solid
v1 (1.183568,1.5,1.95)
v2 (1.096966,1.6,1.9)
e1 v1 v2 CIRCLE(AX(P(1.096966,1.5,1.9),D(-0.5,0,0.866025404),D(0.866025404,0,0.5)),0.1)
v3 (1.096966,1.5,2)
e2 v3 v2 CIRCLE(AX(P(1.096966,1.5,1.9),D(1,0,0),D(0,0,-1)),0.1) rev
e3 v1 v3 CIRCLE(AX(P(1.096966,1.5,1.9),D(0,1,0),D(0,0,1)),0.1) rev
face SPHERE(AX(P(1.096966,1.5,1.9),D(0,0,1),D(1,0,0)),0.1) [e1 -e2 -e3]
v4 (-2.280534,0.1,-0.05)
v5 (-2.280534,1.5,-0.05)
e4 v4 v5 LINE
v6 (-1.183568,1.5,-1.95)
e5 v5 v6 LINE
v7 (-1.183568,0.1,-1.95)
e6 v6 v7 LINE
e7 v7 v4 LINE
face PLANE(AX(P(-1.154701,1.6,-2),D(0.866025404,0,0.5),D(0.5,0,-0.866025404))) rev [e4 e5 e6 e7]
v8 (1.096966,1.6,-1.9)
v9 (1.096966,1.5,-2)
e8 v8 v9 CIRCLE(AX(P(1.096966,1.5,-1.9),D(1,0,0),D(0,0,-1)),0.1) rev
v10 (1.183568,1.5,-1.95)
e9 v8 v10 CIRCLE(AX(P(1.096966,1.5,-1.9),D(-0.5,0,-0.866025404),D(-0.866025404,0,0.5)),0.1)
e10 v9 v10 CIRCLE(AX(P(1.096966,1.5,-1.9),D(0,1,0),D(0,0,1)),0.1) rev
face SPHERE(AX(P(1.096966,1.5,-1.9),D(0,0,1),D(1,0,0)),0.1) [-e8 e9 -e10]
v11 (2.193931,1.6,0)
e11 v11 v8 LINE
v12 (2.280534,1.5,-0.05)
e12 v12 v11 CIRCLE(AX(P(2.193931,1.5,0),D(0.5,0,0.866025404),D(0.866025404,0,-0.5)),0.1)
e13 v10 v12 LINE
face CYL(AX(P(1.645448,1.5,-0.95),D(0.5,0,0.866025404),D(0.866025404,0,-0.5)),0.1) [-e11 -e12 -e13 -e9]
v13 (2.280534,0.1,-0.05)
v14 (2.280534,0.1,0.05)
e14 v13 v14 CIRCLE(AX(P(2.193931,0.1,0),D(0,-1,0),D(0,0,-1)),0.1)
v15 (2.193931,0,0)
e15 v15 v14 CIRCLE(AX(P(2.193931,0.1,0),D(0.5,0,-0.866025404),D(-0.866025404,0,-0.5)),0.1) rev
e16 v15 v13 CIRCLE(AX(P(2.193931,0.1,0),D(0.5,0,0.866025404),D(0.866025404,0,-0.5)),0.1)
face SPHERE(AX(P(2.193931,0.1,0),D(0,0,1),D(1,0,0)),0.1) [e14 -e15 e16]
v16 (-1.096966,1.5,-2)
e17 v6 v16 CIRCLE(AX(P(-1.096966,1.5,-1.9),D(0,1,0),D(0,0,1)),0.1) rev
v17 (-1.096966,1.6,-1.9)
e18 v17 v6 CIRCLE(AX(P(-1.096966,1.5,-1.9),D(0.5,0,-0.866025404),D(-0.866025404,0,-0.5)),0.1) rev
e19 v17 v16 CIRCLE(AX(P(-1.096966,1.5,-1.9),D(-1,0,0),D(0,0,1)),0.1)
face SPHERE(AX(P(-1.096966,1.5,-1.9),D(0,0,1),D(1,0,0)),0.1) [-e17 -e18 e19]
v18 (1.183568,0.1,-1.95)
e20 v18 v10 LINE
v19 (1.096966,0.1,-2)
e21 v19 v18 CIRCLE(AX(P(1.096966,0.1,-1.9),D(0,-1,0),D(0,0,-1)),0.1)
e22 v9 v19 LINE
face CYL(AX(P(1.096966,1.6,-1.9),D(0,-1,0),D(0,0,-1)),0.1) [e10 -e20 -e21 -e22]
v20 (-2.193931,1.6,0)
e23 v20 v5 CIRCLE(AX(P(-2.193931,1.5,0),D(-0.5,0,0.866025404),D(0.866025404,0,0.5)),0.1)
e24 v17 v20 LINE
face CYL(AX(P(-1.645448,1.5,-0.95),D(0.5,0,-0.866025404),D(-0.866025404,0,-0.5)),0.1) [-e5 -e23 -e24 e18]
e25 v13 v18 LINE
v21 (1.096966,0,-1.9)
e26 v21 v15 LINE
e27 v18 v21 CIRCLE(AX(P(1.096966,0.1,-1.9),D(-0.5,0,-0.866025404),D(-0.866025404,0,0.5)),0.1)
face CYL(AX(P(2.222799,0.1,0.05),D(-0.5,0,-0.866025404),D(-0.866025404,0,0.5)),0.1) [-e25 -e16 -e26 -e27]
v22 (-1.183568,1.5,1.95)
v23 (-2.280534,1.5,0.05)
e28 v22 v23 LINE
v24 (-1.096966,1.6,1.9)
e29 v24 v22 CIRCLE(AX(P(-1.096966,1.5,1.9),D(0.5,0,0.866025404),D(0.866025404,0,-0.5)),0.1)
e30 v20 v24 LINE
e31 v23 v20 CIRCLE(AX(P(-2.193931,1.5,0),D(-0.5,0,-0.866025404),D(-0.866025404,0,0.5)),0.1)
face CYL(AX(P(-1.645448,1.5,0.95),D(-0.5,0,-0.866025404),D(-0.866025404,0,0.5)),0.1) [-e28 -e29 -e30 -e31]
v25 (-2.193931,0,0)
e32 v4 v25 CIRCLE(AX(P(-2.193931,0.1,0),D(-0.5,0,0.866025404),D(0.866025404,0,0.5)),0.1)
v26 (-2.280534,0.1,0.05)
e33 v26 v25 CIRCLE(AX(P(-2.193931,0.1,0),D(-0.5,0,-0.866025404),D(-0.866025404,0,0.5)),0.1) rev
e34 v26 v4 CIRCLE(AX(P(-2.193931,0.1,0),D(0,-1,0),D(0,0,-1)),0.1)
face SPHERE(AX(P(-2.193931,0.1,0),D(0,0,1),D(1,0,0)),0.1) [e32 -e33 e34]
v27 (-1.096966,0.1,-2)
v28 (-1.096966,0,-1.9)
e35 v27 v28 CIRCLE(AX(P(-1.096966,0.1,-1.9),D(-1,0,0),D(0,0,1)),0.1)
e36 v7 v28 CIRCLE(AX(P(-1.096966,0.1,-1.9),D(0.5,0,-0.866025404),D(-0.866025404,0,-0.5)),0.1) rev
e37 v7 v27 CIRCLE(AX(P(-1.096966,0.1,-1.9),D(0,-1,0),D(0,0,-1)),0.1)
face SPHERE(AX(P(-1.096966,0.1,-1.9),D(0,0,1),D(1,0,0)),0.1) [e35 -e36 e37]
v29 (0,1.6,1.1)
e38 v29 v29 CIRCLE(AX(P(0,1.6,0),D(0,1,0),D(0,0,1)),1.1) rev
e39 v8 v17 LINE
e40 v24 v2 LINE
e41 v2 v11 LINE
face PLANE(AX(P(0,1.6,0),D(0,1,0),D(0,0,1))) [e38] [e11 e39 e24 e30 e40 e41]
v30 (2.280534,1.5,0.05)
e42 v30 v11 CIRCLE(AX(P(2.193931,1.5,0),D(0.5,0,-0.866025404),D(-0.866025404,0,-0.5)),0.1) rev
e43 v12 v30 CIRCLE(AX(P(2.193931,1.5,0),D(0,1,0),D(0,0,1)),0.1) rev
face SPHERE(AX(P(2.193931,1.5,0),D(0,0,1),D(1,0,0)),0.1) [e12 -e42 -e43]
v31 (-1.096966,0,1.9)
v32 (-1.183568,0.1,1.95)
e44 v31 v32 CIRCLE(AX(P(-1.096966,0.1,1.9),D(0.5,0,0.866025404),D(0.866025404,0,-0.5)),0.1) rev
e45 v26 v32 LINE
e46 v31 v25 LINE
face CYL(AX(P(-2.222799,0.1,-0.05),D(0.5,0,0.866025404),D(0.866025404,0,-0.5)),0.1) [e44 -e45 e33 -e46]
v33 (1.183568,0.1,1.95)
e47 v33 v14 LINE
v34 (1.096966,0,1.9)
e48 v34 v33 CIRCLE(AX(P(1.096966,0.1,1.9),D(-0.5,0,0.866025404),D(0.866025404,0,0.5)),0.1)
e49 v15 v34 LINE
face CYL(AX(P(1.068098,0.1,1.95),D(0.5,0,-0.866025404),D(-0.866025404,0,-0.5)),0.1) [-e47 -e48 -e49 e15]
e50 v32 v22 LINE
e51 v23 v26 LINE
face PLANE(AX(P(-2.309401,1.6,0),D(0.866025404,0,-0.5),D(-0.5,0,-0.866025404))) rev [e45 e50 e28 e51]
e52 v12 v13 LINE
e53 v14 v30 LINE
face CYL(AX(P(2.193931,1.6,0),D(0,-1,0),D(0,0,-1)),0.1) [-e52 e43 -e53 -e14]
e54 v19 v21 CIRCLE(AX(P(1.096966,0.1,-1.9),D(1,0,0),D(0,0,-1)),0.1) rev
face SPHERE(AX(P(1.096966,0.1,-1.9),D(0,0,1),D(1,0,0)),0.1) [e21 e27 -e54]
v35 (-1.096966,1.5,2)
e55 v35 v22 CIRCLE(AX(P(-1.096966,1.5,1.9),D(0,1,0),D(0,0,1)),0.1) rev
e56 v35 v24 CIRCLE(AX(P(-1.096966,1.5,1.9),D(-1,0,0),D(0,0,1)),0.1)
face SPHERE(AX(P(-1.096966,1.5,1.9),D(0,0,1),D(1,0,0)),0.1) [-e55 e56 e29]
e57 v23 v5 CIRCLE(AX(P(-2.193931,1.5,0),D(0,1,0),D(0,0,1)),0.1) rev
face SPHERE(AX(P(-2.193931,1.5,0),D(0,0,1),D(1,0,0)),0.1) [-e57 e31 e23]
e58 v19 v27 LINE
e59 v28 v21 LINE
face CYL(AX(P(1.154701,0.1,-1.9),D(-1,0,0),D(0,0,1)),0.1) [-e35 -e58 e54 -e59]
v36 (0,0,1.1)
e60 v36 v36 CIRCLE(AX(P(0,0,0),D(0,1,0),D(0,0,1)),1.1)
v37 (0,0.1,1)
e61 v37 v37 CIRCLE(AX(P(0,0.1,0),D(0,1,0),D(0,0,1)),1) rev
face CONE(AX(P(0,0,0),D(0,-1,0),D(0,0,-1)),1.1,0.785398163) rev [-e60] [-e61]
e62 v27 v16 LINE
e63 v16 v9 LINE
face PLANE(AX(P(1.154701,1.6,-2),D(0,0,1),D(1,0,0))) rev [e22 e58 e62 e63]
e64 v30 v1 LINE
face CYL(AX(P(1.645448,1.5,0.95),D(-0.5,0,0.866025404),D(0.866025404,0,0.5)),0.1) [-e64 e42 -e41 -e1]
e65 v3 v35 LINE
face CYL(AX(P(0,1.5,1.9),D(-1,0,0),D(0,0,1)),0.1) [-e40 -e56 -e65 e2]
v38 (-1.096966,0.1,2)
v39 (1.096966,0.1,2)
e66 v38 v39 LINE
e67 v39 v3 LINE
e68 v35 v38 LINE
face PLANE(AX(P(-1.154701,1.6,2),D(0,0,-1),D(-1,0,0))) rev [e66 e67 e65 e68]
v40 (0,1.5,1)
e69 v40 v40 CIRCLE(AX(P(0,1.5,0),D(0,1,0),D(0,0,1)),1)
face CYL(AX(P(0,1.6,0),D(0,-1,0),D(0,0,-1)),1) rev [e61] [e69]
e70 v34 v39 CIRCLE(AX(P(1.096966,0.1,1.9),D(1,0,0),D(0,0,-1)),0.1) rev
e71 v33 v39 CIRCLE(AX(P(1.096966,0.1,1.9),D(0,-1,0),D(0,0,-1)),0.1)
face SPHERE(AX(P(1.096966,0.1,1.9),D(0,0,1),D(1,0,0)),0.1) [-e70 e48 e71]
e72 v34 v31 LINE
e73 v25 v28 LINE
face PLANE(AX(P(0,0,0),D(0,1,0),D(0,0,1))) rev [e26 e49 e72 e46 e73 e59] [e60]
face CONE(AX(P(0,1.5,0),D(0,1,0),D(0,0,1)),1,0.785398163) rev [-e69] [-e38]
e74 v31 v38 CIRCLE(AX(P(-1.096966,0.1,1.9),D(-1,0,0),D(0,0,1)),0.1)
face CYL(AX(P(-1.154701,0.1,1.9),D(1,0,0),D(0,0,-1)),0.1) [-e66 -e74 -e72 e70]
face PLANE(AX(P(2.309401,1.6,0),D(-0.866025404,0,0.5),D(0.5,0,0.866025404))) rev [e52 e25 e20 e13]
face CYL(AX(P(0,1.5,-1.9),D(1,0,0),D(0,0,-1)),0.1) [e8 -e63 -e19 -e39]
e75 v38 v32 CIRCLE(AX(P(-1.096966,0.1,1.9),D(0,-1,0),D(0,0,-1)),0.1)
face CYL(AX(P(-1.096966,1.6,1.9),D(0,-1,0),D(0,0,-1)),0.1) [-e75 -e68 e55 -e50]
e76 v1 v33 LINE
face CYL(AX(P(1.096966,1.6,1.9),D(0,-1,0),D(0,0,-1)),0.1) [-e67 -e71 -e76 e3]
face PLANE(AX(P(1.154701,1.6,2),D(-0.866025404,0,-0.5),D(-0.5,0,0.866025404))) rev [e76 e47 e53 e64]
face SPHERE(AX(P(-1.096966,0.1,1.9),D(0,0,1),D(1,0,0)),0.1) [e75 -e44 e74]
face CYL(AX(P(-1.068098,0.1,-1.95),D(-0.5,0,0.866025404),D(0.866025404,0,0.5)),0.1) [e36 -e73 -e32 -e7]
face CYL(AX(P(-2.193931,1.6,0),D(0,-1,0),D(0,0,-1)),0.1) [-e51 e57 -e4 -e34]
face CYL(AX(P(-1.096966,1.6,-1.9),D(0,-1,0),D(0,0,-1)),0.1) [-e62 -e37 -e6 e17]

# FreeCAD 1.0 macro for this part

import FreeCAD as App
import Part
import Sketcher
from FreeCAD import Vector
Q = App.Units.Quantity


def edges_at(feature, points):
    """Names of the edges that pass closest to the given points."""
    edges = feature.Shape.Edges
    near = lambda p: min(range(len(edges)), key=lambda i: edges[i].distToShape(Part.Vertex(*p))[0])
    return sorted({f"Edge{near(p) + 1}" for p in points})


def add_polygon(sketch, points):
    """Adds a closed chain of lines whose ends are joined by coincident constraints."""
    first, n = sketch.GeometryCount, len(points)
    for a, b in zip(points, points[1:] + points[:1]):
        sketch.addGeometry(Part.LineSegment(App.Vector(*a, 0), App.Vector(*b, 0)), False)
    for i in range(n):
        sketch.addConstraint(Sketcher.Constraint("Coincident", first + i, 2, first + (i + 1) % n, 1))

doc = App.newDocument("Part")
params = doc.addObject("Spreadsheet::Sheet", "Params")
for row, (alias, value) in enumerate([
    ("sketch1_diameter", "2 mm"),
    ("pad1_length", "1.6 mm"),
    ("fillet_radius", "0.1 mm"),
    ("chamfer_size", "0.1 mm"),
], start=1):
    params.set(f"A{row}", alias)
    params.set(f"B{row}", "=" + value)
    params.setAlias(f"B{row}", alias)

body = doc.addObject("PartDesign::Body", "Body")

sketch1 = doc.addObject("Sketcher::SketchObject", "Sketch")
body.addObject(sketch1)
sketch1.AttachmentSupport = (doc.XZ_Plane, [""])
sketch1.MapMode = "FlatFace"
add_polygon(sketch1, [(2.3, 0), (1.2, -2), (-1.2, -2), (-2.3, 0), (-1.2, 2), (1.2, 2)])
sketch1.addGeometry(Part.Circle(Vector(0, 0, 0), Vector(0, 0, 1), 1), False)
sketch1.addConstraint([
    Sketcher.Constraint("Horizontal", 1),
    Sketcher.Constraint("Horizontal", 4),
    Sketcher.Constraint("Coincident", 6, 3, -1, 1),
    Sketcher.Constraint("Symmetric", 0, 2, 3, 2, -1, 1),
    Sketcher.Constraint("Symmetric", 2, 2, 5, 2, -1, 1),
    Sketcher.Constraint("PointOnObject", 2, 2, -1),
    Sketcher.Constraint("Parallel", 2, 5),
    Sketcher.Constraint("Vertical", 1, 2, 3, 2),
    Sketcher.Constraint("Diameter", 6, Q("2 mm")),
    Sketcher.Constraint("Angle", 0, Q("-120 deg")),
    Sketcher.Constraint("DistanceY", 0, 2, -1, 1, Q("2 mm")),
    Sketcher.Constraint("DistanceX", 1, 2, 1, 1, Q("2.309401 mm")),
])
sketch1.setExpression("Constraints[14]", "Params.sketch1_diameter")
pad1 = doc.addObject("PartDesign::Pad", "Pad")
body.addObject(pad1)
pad1.Profile = sketch1
pad1.setExpression("Length", "Params.pad1_length")
pad1.Reversed = True
doc.recompute()

fillet = doc.addObject("PartDesign::Fillet", "Fillet")
body.addObject(fillet)
fillet.Base = (pad1, edges_at(pad1, [
    (1.155, 0.8, 2),
    (-1.155, 0.8, 2),
    (-2.309, 0.8, 0),
    (-1.155, 0.8, -2),
    (1.155, 0.8, -2),
    (2.309, 0.8, 0),
    (0, 1.6, -2),
    (-1.732, 1.6, -1),
    (-1.732, 1.6, 1),
    (0, 1.6, 2),
    (1.732, 1.6, 1),
    (0, 0, 2),
    (-1.732, 0, 1),
    (-1.732, 0, -1),
    (0, 0, -2),
    (1.732, 0, -1),
    (1.732, 0, 1),
    (1.732, 1.6, -1),
]))
fillet.setExpression("Radius", "Params.fillet_radius")
doc.recompute()

chamfer = doc.addObject("PartDesign::Chamfer", "Chamfer")
body.addObject(chamfer)
chamfer.Base = (fillet, edges_at(fillet, [(0, 0, -1), (0, 1.6, -1)]))
chamfer.setExpression("Size", "Params.chamfer_size")

doc.recompute()
